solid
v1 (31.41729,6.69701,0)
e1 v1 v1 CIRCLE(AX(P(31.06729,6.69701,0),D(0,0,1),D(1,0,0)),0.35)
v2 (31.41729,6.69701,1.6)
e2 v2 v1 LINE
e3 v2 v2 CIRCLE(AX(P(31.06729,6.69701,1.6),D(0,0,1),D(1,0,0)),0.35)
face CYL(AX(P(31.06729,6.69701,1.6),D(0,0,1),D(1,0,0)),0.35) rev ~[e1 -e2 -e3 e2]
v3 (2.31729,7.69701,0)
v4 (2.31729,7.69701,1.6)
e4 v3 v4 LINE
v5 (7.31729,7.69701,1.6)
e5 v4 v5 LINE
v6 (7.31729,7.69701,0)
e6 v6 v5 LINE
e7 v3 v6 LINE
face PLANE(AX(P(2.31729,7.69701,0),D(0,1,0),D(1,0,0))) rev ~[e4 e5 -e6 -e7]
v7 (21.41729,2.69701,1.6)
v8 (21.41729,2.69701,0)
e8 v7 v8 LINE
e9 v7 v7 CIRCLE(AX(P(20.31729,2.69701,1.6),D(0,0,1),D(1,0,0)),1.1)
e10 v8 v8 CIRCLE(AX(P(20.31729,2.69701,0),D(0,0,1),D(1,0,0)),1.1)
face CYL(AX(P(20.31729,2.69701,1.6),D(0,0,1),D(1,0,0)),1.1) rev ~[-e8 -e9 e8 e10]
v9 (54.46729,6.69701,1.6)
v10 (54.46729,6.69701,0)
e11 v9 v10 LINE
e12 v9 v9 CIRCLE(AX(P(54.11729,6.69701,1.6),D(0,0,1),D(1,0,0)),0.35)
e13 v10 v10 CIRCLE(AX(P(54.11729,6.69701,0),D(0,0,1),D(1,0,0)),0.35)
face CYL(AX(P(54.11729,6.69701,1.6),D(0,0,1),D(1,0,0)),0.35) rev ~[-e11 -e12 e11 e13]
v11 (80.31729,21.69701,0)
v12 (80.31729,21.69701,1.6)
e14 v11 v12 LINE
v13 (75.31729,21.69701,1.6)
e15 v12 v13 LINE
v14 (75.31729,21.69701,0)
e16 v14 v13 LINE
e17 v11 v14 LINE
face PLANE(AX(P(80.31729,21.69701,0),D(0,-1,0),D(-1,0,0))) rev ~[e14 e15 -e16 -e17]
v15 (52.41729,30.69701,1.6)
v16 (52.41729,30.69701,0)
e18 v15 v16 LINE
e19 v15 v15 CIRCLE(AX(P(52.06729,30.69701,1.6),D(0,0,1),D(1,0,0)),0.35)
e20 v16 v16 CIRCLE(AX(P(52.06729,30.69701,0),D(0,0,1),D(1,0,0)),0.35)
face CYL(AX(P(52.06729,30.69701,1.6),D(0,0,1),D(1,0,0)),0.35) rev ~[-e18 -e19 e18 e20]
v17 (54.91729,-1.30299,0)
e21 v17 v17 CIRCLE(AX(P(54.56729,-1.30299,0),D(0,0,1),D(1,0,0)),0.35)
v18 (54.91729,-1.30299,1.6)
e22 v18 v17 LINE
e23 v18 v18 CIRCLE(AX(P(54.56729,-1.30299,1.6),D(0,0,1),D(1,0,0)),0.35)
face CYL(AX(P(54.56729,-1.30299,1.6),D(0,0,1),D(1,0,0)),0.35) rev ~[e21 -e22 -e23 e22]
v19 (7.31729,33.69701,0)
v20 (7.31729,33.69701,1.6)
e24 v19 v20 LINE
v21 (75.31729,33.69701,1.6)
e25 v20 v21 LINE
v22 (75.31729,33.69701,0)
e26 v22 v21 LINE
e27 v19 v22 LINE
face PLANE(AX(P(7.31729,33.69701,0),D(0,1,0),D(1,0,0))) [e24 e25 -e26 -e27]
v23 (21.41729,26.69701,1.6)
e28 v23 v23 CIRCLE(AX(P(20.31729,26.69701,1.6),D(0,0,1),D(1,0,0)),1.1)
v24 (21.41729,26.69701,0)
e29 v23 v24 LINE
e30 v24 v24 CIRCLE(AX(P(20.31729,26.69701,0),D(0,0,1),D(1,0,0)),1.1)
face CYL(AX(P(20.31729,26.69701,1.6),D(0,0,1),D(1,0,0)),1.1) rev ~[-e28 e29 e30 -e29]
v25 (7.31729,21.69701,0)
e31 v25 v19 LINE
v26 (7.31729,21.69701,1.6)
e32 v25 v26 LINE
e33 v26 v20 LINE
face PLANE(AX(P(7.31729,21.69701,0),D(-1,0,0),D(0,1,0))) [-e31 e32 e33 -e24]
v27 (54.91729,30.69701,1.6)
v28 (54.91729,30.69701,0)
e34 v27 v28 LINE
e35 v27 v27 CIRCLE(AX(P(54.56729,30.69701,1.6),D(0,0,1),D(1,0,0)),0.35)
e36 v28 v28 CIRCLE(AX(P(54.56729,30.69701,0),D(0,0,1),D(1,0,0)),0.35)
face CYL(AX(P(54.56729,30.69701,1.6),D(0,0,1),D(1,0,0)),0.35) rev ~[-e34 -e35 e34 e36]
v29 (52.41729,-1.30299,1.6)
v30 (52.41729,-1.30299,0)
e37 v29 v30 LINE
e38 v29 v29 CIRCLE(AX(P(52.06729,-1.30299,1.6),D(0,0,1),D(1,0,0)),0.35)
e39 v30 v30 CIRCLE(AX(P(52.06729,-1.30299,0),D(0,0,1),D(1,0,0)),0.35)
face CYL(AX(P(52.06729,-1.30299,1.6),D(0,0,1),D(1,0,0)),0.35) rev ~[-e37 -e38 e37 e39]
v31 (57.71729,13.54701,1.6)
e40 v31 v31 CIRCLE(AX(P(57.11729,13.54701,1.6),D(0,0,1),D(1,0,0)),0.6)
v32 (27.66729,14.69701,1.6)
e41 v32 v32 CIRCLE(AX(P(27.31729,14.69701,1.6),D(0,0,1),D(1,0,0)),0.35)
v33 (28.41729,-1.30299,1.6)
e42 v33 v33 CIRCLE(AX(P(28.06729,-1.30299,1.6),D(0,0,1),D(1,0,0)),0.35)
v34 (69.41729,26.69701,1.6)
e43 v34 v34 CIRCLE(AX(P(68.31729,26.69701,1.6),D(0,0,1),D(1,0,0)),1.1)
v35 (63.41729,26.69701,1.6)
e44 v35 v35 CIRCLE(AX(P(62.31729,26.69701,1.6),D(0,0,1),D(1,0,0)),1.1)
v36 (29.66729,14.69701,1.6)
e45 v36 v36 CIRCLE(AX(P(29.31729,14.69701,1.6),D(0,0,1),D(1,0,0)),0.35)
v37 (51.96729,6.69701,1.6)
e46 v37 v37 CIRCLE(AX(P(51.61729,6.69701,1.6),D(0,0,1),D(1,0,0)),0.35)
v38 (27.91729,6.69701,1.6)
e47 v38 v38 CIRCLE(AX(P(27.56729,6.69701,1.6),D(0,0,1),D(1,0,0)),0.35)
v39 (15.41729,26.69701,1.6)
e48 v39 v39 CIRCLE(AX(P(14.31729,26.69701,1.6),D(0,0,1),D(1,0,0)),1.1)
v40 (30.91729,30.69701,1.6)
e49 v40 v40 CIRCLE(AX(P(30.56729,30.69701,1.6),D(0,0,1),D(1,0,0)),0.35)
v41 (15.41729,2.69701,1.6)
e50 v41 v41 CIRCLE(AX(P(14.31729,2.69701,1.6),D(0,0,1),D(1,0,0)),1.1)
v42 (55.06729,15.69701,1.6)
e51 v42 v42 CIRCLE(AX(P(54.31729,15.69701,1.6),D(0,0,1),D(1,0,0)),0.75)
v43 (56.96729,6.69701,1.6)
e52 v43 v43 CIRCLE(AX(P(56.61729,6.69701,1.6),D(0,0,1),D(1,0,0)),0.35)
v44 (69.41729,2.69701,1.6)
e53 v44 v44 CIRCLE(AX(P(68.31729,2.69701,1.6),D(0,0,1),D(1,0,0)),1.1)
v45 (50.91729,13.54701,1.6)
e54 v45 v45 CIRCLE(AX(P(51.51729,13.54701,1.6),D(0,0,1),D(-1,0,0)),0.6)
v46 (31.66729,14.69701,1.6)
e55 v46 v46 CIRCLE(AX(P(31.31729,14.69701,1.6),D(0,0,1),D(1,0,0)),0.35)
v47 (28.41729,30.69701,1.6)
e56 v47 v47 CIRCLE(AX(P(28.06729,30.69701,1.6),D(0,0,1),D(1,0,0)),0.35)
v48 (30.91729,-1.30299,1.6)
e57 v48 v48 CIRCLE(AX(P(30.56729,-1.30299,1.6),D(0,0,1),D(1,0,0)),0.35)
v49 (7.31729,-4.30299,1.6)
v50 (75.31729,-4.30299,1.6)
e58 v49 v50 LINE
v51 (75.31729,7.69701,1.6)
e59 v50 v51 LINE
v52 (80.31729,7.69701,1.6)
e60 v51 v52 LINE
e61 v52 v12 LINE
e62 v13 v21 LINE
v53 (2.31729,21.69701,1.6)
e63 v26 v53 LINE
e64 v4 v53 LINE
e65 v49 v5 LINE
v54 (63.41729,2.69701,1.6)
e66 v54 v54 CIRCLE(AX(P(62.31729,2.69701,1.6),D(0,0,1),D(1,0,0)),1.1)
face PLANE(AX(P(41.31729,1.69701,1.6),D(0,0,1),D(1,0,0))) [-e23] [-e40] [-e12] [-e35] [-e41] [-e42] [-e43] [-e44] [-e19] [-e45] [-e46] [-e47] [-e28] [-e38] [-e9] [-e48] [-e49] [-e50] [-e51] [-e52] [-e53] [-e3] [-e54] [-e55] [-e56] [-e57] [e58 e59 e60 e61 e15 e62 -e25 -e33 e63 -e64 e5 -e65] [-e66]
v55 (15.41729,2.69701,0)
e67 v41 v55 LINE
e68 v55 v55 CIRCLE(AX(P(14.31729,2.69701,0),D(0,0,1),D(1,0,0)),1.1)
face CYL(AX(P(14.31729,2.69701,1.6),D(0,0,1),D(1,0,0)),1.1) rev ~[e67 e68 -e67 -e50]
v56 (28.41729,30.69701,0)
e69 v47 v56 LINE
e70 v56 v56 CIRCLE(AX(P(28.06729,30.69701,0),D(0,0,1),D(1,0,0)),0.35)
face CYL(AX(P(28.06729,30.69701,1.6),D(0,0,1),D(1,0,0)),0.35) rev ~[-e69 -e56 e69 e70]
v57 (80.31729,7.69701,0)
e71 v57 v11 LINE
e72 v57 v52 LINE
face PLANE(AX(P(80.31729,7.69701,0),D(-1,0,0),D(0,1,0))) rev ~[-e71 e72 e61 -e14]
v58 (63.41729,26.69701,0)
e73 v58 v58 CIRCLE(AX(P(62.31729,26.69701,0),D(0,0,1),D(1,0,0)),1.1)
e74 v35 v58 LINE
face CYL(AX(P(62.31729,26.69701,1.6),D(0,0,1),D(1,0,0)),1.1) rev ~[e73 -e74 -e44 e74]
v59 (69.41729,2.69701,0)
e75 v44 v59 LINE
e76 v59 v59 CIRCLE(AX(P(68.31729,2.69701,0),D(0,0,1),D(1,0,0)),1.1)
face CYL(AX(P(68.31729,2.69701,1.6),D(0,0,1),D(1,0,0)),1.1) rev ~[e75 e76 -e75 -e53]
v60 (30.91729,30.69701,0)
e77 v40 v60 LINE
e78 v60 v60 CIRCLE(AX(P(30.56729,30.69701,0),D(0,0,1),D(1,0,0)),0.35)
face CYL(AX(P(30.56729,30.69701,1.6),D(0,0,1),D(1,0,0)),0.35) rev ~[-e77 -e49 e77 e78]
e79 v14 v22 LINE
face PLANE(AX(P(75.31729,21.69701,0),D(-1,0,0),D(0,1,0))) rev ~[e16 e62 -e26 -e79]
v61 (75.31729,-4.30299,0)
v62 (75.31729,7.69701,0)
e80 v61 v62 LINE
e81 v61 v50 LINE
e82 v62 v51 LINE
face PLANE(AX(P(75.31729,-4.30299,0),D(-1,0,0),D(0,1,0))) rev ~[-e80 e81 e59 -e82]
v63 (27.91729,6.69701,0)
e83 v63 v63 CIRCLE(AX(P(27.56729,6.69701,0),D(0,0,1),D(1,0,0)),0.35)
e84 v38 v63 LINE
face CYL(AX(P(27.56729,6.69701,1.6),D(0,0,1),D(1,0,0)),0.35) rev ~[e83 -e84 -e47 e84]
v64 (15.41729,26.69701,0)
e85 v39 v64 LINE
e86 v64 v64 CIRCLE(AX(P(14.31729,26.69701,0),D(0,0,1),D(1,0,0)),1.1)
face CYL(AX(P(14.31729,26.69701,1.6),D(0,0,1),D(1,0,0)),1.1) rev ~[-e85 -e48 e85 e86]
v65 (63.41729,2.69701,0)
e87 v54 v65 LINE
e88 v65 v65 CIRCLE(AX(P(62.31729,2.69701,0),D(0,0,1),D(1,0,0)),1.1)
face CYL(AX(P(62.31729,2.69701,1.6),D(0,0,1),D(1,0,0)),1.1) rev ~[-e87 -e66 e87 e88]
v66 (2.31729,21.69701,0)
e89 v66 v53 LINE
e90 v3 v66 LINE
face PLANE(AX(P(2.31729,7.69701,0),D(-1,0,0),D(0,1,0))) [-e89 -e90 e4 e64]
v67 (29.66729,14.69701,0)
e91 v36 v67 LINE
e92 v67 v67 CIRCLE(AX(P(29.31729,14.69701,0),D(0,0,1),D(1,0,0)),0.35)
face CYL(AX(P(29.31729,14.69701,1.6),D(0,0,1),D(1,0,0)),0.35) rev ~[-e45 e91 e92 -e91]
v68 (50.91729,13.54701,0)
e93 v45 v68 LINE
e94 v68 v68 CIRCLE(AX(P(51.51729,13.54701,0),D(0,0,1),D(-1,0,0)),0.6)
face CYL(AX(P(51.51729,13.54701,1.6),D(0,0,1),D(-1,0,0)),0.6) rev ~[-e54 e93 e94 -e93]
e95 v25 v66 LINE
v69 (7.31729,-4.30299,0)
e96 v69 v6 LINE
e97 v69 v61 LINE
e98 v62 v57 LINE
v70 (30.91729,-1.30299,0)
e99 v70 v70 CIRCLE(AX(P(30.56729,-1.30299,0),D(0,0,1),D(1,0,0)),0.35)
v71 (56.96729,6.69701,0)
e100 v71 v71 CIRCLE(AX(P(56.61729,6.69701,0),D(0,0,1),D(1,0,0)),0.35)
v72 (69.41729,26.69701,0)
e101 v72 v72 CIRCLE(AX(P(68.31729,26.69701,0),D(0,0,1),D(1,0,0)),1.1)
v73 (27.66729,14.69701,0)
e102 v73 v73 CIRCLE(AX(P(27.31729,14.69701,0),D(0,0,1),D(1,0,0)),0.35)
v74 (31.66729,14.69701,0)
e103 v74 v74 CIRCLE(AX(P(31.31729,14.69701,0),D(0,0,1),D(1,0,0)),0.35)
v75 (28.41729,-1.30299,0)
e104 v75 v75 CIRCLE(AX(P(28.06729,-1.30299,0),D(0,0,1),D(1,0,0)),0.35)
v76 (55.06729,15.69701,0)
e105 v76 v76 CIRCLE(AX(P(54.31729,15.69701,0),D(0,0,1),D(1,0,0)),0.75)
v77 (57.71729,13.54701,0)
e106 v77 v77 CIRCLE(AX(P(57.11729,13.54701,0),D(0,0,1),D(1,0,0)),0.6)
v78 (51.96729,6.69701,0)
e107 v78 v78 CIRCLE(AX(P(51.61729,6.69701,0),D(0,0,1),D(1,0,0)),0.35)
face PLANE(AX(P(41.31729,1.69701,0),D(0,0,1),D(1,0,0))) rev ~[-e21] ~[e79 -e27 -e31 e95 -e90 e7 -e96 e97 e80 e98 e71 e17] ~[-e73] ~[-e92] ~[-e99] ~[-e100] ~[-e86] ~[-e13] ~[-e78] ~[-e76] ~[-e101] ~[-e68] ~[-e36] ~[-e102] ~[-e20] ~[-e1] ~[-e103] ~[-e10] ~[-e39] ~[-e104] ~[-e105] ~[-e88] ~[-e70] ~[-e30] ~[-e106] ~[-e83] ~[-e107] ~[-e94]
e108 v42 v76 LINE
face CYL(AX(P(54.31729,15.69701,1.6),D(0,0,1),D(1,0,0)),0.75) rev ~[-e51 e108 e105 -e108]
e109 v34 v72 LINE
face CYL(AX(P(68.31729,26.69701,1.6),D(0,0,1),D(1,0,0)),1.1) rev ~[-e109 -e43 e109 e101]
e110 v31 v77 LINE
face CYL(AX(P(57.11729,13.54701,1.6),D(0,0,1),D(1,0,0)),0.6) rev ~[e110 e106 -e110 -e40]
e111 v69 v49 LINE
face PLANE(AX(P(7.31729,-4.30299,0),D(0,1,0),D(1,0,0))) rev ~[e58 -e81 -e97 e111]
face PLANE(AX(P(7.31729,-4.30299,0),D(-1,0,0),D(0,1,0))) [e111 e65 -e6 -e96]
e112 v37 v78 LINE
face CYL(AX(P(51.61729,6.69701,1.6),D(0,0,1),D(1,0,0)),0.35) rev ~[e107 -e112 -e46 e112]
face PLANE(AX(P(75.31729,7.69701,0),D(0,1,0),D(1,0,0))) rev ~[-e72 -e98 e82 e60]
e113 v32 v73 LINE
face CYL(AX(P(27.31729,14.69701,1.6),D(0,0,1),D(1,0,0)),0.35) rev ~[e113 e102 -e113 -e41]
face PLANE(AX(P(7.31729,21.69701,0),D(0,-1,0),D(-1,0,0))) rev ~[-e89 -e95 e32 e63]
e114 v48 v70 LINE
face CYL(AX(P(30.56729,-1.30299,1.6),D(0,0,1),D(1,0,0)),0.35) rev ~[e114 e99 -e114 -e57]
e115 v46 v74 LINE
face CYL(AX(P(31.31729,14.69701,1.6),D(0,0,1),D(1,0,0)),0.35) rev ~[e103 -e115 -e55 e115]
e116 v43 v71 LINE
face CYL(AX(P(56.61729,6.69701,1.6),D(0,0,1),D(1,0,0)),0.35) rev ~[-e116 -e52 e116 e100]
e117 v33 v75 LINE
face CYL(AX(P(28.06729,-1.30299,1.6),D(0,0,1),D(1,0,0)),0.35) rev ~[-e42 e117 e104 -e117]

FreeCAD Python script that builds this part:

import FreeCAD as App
import Part
import Sketcher

doc = App.newDocument("Part")
body = doc.addObject("PartDesign::Body", "Body")

# Sketch on XY plane
sketch1 = body.newObject("Sketcher::SketchObject", "Sketch")
sketch1.AttachmentSupport = (doc.getObject("XY_Plane"), [""])
sketch1.MapMode = "FlatFace"
sketch1.addGeometry([
    Part.LineSegment(App.Vector(7, 8, 0), App.Vector(7, -4, 0)),  # 0
    Part.LineSegment(App.Vector(7, -4, 0), App.Vector(75, -4, 0)),  # 1
    Part.LineSegment(App.Vector(75, -4, 0), App.Vector(75, 8, 0)),  # 2
    Part.LineSegment(App.Vector(75, 8, 0), App.Vector(80, 8, 0)),  # 3
    Part.LineSegment(App.Vector(80, 8, 0), App.Vector(80, 22, 0)),  # 4
    Part.LineSegment(App.Vector(80, 22, 0), App.Vector(75, 22, 0)),  # 5
    Part.LineSegment(App.Vector(75, 22, 0), App.Vector(75, 34, 0)),  # 6
    Part.LineSegment(App.Vector(75, 34, 0), App.Vector(7, 34, 0)),  # 7
    Part.LineSegment(App.Vector(7, 34, 0), App.Vector(7, 22, 0)),  # 8
    Part.LineSegment(App.Vector(7, 22, 0), App.Vector(2, 22, 0)),  # 9
    Part.LineSegment(App.Vector(2, 22, 0), App.Vector(2, 8, 0)),  # 10
    Part.LineSegment(App.Vector(2, 8, 0), App.Vector(7, 8, 0)),  # 11
], False)
sketch1.addConstraint([
    Sketcher.Constraint("Coincident", 0, 2, 1, 1),
    Sketcher.Constraint("Coincident", 1, 2, 2, 1),
    Sketcher.Constraint("Coincident", 2, 2, 3, 1),
    Sketcher.Constraint("Coincident", 3, 2, 4, 1),
    Sketcher.Constraint("Coincident", 4, 2, 5, 1),
    Sketcher.Constraint("Coincident", 5, 2, 6, 1),
    Sketcher.Constraint("Coincident", 6, 2, 7, 1),
    Sketcher.Constraint("Coincident", 7, 2, 8, 1),
    Sketcher.Constraint("Coincident", 8, 2, 9, 1),
    Sketcher.Constraint("Coincident", 9, 2, 10, 1),
    Sketcher.Constraint("Coincident", 10, 2, 11, 1),
    Sketcher.Constraint("Coincident", 11, 2, 0, 1),
    Sketcher.Constraint("Vertical", 0),
    Sketcher.Constraint("Horizontal", 1),
    Sketcher.Constraint("Vertical", 2),
    Sketcher.Constraint("Horizontal", 3),
    Sketcher.Constraint("Vertical", 4),
    Sketcher.Constraint("Horizontal", 5),
    Sketcher.Constraint("Vertical", 6),
    Sketcher.Constraint("Horizontal", 7),
    Sketcher.Constraint("Vertical", 8),
    Sketcher.Constraint("Horizontal", 9),
    Sketcher.Constraint("Vertical", 10),
    Sketcher.Constraint("Horizontal", 11),
    Sketcher.Constraint("Horizontal", 5, 2, 8, 2),
    Sketcher.Constraint("Horizontal", 3, 2, 10, 2),
    Sketcher.Constraint("Vertical", 2, 2, 5, 2),
    Sketcher.Constraint("Vertical", 0, 2, 7, 2),
    Sketcher.Constraint("Equal", 5, 9),
    Sketcher.Constraint("Equal", 2, 6),
    Sketcher.Constraint("DistanceX", 1, 1, 1, 2, 68.0),
    Sketcher.Constraint("DistanceX", 3, 1, 3, 2, 5.0),
    Sketcher.Constraint("DistanceY", 0, 2, 0, 1, 12.0),
    Sketcher.Constraint("DistanceY", 4, 1, 4, 2, 14.0),
    Sketcher.Constraint("DistanceX", -1, 1, 0, 2, 7.31729),
    Sketcher.Constraint("DistanceY", 0, 2, -1, 1, 4.30299),
])
pad1 = body.newObject("PartDesign::Pad", "Pad")
pad1.Profile = sketch1
pad1.Length = 1.6

# Sketch on XY plane
sketch2 = body.newObject("Sketcher::SketchObject", "Sketch001")
sketch2.AttachmentSupport = (doc.getObject("XY_Plane"), [""])
sketch2.MapMode = "FlatFace"
sketch2.AttachmentOffset = App.Placement(App.Vector(0, 0, 1.6), App.Rotation())
sketch2.addGeometry([
    Part.Circle(App.Vector(51.62, 6.7, 0), App.Vector(0, 0, 1), 0.35),  # 0
    Part.Circle(App.Vector(56.62, 6.7, 0), App.Vector(0, 0, 1), 0.35),  # 1
    Part.Circle(App.Vector(54.12, 6.7, 0), App.Vector(0, 0, 1), 0.35),  # 2
    Part.Circle(App.Vector(28.07, -1.3, 0), App.Vector(0, 0, 1), 0.35),  # 3
    Part.Circle(App.Vector(30.57, -1.3, 0), App.Vector(0, 0, 1), 0.35),  # 4
    Part.Circle(App.Vector(52.07, -1.3, 0), App.Vector(0, 0, 1), 0.35),  # 5
    Part.Circle(App.Vector(54.57, -1.3, 0), App.Vector(0, 0, 1), 0.35),  # 6
    Part.Circle(App.Vector(54.57, 30.7, 0), App.Vector(0, 0, 1), 0.35),  # 7
    Part.Circle(App.Vector(52.07, 30.7, 0), App.Vector(0, 0, 1), 0.35),  # 8
    Part.Circle(App.Vector(30.57, 30.7, 0), App.Vector(0, 0, 1), 0.35),  # 9
    Part.Circle(App.Vector(28.07, 30.7, 0), App.Vector(0, 0, 1), 0.35),  # 10
    Part.Circle(App.Vector(27.57, 6.7, 0), App.Vector(0, 0, 1), 0.35),  # 11
    Part.Circle(App.Vector(31.07, 6.7, 0), App.Vector(0, 0, 1), 0.35),  # 12
    Part.Circle(App.Vector(54.32, 15.7, 0), App.Vector(0, 0, 1), 0.75),  # 13
    Part.Circle(App.Vector(51.52, 13.55, 0), App.Vector(0, 0, 1), 0.6),  # 14
    Part.Circle(App.Vector(57.12, 13.55, 0), App.Vector(0, 0, 1), 0.6),  # 15
    Part.Circle(App.Vector(27.32, 14.7, 0), App.Vector(0, 0, 1), 0.35),  # 16
    Part.Circle(App.Vector(29.32, 14.7, 0), App.Vector(0, 0, 1), 0.35),  # 17
    Part.Circle(App.Vector(31.32, 14.7, 0), App.Vector(0, 0, 1), 0.35),  # 18
], False)
sketch2.addConstraint([
    Sketcher.Constraint("Equal", 0, 1),
    Sketcher.Constraint("Equal", 1, 2),
    Sketcher.Constraint("Equal", 2, 3),
    Sketcher.Constraint("Equal", 3, 4),
    Sketcher.Constraint("Equal", 4, 5),
    Sketcher.Constraint("Equal", 5, 6),
    Sketcher.Constraint("Equal", 6, 7),
    Sketcher.Constraint("Equal", 7, 8),
    Sketcher.Constraint("Equal", 8, 9),
    Sketcher.Constraint("Equal", 9, 10),
    Sketcher.Constraint("Equal", 10, 11),
    Sketcher.Constraint("Equal", 11, 12),
    Sketcher.Constraint("Equal", 14, 15),
    Sketcher.Constraint("Equal", 12, 16),
    Sketcher.Constraint("Equal", 16, 17),
    Sketcher.Constraint("Equal", 17, 18),
    Sketcher.Constraint("Horizontal", 0, 3, 1, 3),
    Sketcher.Constraint("Horizontal", 1, 3, 2, 3),
    Sketcher.Constraint("Horizontal", 3, 3, 4, 3),
    Sketcher.Constraint("Horizontal", 4, 3, 5, 3),
    Sketcher.Constraint("Horizontal", 5, 3, 6, 3),
    Sketcher.Constraint("Horizontal", 7, 3, 8, 3),
    Sketcher.Constraint("Horizontal", 8, 3, 9, 3),
    Sketcher.Constraint("Horizontal", 9, 3, 10, 3),
    Sketcher.Constraint("Horizontal", 2, 3, 11, 3),
    Sketcher.Constraint("Horizontal", 11, 3, 12, 3),
    Sketcher.Constraint("Horizontal", 14, 3, 15, 3),
    Sketcher.Constraint("Horizontal", 16, 3, 17, 3),
    Sketcher.Constraint("Horizontal", 17, 3, 18, 3),
    Sketcher.Constraint("Vertical", 6, 3, 7, 3),
    Sketcher.Constraint("Vertical", 5, 3, 8, 3),
    Sketcher.Constraint("Vertical", 4, 3, 9, 3),
    Sketcher.Constraint("Vertical", 3, 3, 10, 3),
    Sketcher.Constraint("Diameter", 0, 0.7),
    Sketcher.Constraint("Diameter", 13, 1.5),
    Sketcher.Constraint("Diameter", 14, 1.2),
    Sketcher.Constraint("DistanceX", 0, 3, 1, 3, 5.0),
    Sketcher.Constraint("DistanceY", 3, 3, 0, 3, 8.0),
    Sketcher.Constraint("DistanceX", 3, 3, 5, 3, 24.0),
    Sketcher.Constraint("DistanceX", 4, 3, 6, 3, 24.0),
    Sketcher.Constraint("DistanceY", 2, 3, 7, 3, 24.0),
    Sketcher.Constraint("DistanceX", 11, 3, 4, 3, 3.0),
    Sketcher.Constraint("DistanceX", 3, 3, 12, 3, 3.0),
    Sketcher.Constraint("DistanceY", 2, 3, 13, 3, 9.0),
    Sketcher.Constraint("DistanceX", 2, 3, 15, 3, 3.0),
    Sketcher.Constraint("DistanceY", 11, 3, 16, 3, 8.0),
    Sketcher.Constraint("DistanceX", 16, 3, 17, 3, 2.0),
    Sketcher.Constraint("DistanceX", 17, 3, 18, 3, 2.0),
    Sketcher.Constraint("DistanceX", 0, 3, 2, 3, 2.5),
    Sketcher.Constraint("DistanceX", 3, 3, 4, 3, 2.5),
    Sketcher.Constraint("DistanceX", 2, 3, 13, 3, 0.2),
    Sketcher.Constraint("DistanceX", 14, 3, 13, 3, 2.8),
    Sketcher.Constraint("DistanceX", 3, 3, 0, 3, 23.55),
    Sketcher.Constraint("DistanceY", 14, 3, 13, 3, 2.15),
    Sketcher.Constraint("DistanceX", 16, 3, 11, 3, 0.25),
    Sketcher.Constraint("DistanceX", -1, 1, 0, 3, 51.61729),
    Sketcher.Constraint("DistanceY", -1, 1, 0, 3, 6.69701),
])
pocket1 = body.newObject("PartDesign::Pocket", "Pocket")
pocket1.Profile = sketch2
pocket1.Length = 4

# Sketch on XY plane
sketch3 = body.newObject("Sketcher::SketchObject", "Sketch002")
sketch3.AttachmentSupport = (doc.getObject("XY_Plane"), [""])
sketch3.MapMode = "FlatFace"
sketch3.AttachmentOffset = App.Placement(App.Vector(0, 0, 1.6), App.Rotation())
sketch3.addGeometry([
    Part.Circle(App.Vector(62.3, 26.7, 0), App.Vector(0, 0, 1), 1.1),  # 0
    Part.Circle(App.Vector(20.3, 26.7, 0), App.Vector(0, 0, 1), 1.1),  # 1
    Part.Circle(App.Vector(68.3, 2.7, 0), App.Vector(0, 0, 1), 1.1),  # 2
    Part.Circle(App.Vector(14.3, 2.7, 0), App.Vector(0, 0, 1), 1.1),  # 3
    Part.Circle(App.Vector(62.3, 2.7, 0), App.Vector(0, 0, 1), 1.1),  # 4
    Part.Circle(App.Vector(20.3, 2.7, 0), App.Vector(0, 0, 1), 1.1),  # 5
    Part.Circle(App.Vector(68.3, 26.7, 0), App.Vector(0, 0, 1), 1.1),  # 6
    Part.Circle(App.Vector(14.3, 26.7, 0), App.Vector(0, 0, 1), 1.1),  # 7
], False)
sketch3.addConstraint([
    Sketcher.Constraint("Equal", 0, 1),
    Sketcher.Constraint("Equal", 1, 2),
    Sketcher.Constraint("Equal", 2, 3),
    Sketcher.Constraint("Equal", 3, 4),
    Sketcher.Constraint("Equal", 4, 5),
    Sketcher.Constraint("Equal", 5, 6),
    Sketcher.Constraint("Equal", 6, 7),
    Sketcher.Constraint("Horizontal", 0, 3, 1, 3),
    Sketcher.Constraint("Horizontal", 2, 3, 3, 3),
    Sketcher.Constraint("Horizontal", 3, 3, 4, 3),
    Sketcher.Constraint("Horizontal", 4, 3, 5, 3),
    Sketcher.Constraint("Horizontal", 1, 3, 6, 3),
    Sketcher.Constraint("Horizontal", 6, 3, 7, 3),
    Sketcher.Constraint("Vertical", 0, 3, 4, 3),
    Sketcher.Constraint("Vertical", 1, 3, 5, 3),
    Sketcher.Constraint("Vertical", 2, 3, 6, 3),
    Sketcher.Constraint("Vertical", 3, 3, 7, 3),
    Sketcher.Constraint("Diameter", 0, 2.2),
    Sketcher.Constraint("DistanceX", 1, 3, 0, 3, 42.0),
    Sketcher.Constraint("DistanceX", 0, 3, 2, 3, 6.0),
    Sketcher.Constraint("DistanceY", 2, 3, 0, 3, 24.0),
    Sketcher.Constraint("DistanceX", 3, 3, 1, 3, 6.0),
    Sketcher.Constraint("DistanceX", -1, 1, 0, 3, 62.31729),
    Sketcher.Constraint("DistanceY", -1, 1, 0, 3, 26.69701),
])
pocket2 = body.newObject("PartDesign::Pocket", "Pocket001")
pocket2.Profile = sketch3
pocket2.Length = 25

doc.recompute()
